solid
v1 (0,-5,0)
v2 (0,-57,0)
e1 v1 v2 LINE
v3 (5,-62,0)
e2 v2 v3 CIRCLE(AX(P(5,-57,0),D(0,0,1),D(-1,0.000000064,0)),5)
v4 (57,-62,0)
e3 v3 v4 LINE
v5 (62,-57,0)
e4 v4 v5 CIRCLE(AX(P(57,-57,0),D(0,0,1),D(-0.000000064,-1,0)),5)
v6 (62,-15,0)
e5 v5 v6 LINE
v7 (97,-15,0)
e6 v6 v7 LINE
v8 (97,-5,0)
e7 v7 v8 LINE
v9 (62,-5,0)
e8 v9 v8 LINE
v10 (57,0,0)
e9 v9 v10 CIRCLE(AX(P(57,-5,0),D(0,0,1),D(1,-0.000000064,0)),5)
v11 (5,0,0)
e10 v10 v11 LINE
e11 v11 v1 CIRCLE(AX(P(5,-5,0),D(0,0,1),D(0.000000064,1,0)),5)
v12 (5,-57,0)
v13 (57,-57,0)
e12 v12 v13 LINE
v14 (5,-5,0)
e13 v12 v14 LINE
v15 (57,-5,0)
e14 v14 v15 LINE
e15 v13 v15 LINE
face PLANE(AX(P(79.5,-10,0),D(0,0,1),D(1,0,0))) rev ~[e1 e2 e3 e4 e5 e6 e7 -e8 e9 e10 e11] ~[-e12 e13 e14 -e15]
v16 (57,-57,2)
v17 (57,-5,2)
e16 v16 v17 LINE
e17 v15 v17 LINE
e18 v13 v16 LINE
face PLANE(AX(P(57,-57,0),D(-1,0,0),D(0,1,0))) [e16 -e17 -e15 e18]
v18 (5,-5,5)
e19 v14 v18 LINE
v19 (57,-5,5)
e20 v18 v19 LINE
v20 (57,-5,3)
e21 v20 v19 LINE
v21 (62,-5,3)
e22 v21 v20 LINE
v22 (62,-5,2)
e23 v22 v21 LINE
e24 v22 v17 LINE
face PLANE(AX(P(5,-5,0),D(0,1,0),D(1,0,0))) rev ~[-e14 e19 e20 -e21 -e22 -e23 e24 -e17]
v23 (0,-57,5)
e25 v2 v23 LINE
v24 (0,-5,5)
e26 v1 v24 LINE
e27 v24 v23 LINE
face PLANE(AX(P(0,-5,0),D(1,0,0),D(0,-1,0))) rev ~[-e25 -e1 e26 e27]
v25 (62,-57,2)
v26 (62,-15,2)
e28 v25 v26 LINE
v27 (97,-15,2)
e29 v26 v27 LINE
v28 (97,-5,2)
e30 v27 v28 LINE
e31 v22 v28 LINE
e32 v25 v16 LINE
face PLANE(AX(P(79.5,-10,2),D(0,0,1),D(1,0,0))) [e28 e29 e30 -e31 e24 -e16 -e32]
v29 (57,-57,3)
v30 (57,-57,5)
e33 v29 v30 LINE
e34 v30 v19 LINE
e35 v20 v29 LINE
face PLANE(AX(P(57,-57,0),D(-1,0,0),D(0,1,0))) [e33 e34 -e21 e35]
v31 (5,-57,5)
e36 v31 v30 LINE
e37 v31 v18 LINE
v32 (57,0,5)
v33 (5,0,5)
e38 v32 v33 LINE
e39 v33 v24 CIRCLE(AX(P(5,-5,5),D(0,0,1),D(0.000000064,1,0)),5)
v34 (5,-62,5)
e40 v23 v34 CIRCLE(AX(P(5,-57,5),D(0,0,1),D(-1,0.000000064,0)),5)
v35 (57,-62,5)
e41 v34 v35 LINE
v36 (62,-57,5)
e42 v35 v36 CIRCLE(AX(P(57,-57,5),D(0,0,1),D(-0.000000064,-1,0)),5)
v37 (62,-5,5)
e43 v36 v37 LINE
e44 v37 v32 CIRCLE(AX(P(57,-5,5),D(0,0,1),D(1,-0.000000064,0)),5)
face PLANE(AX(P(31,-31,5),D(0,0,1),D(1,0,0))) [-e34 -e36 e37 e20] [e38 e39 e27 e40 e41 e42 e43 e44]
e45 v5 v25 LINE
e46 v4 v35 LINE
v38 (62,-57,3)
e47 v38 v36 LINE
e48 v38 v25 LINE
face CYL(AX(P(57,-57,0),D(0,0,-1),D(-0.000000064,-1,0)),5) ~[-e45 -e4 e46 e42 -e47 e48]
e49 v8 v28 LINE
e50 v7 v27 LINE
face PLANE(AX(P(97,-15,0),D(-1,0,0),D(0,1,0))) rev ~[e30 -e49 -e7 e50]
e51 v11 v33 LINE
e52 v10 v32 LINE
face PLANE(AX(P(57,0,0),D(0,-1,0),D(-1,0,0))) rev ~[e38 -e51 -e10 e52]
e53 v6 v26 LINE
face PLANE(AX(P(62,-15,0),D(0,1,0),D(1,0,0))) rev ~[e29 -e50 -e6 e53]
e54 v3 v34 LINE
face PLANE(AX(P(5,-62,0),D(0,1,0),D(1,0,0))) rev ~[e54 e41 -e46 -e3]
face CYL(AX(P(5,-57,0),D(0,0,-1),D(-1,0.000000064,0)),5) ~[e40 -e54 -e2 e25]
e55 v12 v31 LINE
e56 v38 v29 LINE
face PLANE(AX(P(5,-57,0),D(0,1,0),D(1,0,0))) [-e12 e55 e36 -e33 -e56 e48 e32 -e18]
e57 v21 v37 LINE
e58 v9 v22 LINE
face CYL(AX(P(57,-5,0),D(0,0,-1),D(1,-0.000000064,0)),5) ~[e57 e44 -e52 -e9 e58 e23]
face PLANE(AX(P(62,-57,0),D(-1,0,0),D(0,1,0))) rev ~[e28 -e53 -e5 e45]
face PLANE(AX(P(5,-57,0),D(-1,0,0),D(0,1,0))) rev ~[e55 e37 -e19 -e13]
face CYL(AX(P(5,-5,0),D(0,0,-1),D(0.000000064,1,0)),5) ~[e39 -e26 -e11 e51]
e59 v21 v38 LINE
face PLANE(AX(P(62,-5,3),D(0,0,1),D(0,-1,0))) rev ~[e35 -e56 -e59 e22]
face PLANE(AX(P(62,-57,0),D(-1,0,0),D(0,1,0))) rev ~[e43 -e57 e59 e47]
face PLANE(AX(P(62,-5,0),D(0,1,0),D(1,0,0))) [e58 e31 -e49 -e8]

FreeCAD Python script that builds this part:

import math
import FreeCAD as App
import Part
import Sketcher

V = App.Vector
Q = App.Units.Quantity


def add_polygon(sketch, points):
    """Adds a closed chain of lines whose ends are joined by coincident constraints."""
    first, n = sketch.GeometryCount, len(points)
    for a, b in zip(points, points[1:] + points[:1]):
        sketch.addGeometry(Part.LineSegment(App.Vector(*a, 0), App.Vector(*b, 0)), False)
    for i in range(n):
        sketch.addConstraint(Sketcher.Constraint("Coincident", first + i, 2, first + (i + 1) % n, 1))

doc = App.newDocument("Part")
body = doc.addObject("PartDesign::Body", "Body")

# Sketch on XY plane
sketch1 = doc.addObject("Sketcher::SketchObject", "Sketch")
body.addObject(sketch1)
sketch1.AttachmentSupport = (doc.XY_Plane, [""])
sketch1.MapMode = "FlatFace"
sketch1.addGeometry(Part.LineSegment(V(57, 0, 0), V(5, 0, 0)), False)  # 0
sketch1.addGeometry(Part.ArcOfCircle(Part.Circle(V(5, -5, 0), V(0, 0, 1), 5), math.radians(90), math.radians(180)), False)  # 1
sketch1.addGeometry(Part.LineSegment(V(0, -5, 0), V(0, -57, 0)), False)  # 2
sketch1.addGeometry(Part.ArcOfCircle(Part.Circle(V(5, -57, 0), V(0, 0, 1), 5), math.radians(180), math.radians(270)), False)  # 3
sketch1.addGeometry(Part.LineSegment(V(5, -62, 0), V(57, -62, 0)), False)  # 4
sketch1.addGeometry(Part.ArcOfCircle(Part.Circle(V(57, -57, 0), V(0, 0, 1), 5), math.radians(-90), math.radians(0)), False)  # 5
sketch1.addGeometry(Part.LineSegment(V(62, -57, 0), V(62, -5, 0)), False)  # 6
sketch1.addGeometry(Part.ArcOfCircle(Part.Circle(V(57, -5, 0), V(0, 0, 1), 5), math.radians(0), math.radians(90)), False)  # 7
add_polygon(sketch1, [(57, -57), (5, -57), (5, -5), (57, -5)])  # lines 8-11
sketch1.addConstraint(Sketcher.Constraint("Tangent", 0, 2, 1, 1))
sketch1.addConstraint(Sketcher.Constraint("Tangent", 1, 2, 2, 1))
sketch1.addConstraint(Sketcher.Constraint("Tangent", 2, 2, 3, 1))
sketch1.addConstraint(Sketcher.Constraint("Tangent", 3, 2, 4, 1))
sketch1.addConstraint(Sketcher.Constraint("Tangent", 4, 2, 5, 1))
sketch1.addConstraint(Sketcher.Constraint("Tangent", 5, 2, 6, 1))
sketch1.addConstraint(Sketcher.Constraint("Tangent", 6, 2, 7, 1))
sketch1.addConstraint(Sketcher.Constraint("Tangent", 7, 2, 0, 1))
sketch1.addConstraint(Sketcher.Constraint("Horizontal", 0))
sketch1.addConstraint(Sketcher.Constraint("Vertical", 2))
sketch1.addConstraint(Sketcher.Constraint("Horizontal", 4))
sketch1.addConstraint(Sketcher.Constraint("Vertical", 6))
sketch1.addConstraint(Sketcher.Constraint("Horizontal", 8))
sketch1.addConstraint(Sketcher.Constraint("Vertical", 9))
sketch1.addConstraint(Sketcher.Constraint("Horizontal", 10))
sketch1.addConstraint(Sketcher.Constraint("Vertical", 11))
sketch1.addConstraint(Sketcher.Constraint("Coincident", 8, 2, 3, 3))
sketch1.addConstraint(Sketcher.Constraint("Coincident", 9, 2, 1, 3))
sketch1.addConstraint(Sketcher.Constraint("Coincident", 10, 2, 7, 3))
sketch1.addConstraint(Sketcher.Constraint("Equal", 3, 5))
sketch1.addConstraint(Sketcher.Constraint("PointOnObject", 0, 2, -1))
sketch1.addConstraint(Sketcher.Constraint("PointOnObject", 1, 2, -2))
sketch1.addConstraint(Sketcher.Constraint("Equal", 10, 2))
sketch1.addConstraint(Sketcher.Constraint("Radius", 1, Q("5 mm")))
sketch1.addConstraint(Sketcher.Constraint("DistanceX", 0, 2, 0, 1, Q("52 mm")))
pad1 = doc.addObject("PartDesign::Pad", "Pad")
body.addObject(pad1)
pad1.Profile = sketch1
pad1.Length = 5

# Sketch on XY plane
sketch2 = doc.addObject("Sketcher::SketchObject", "Sketch001")
body.addObject(sketch2)
sketch2.AttachmentSupport = (doc.XY_Plane, [""])
sketch2.MapMode = "FlatFace"
add_polygon(sketch2, [(62, -5), (62, -15), (97, -15), (97, -5)])  # lines 0-3
sketch2.addConstraint(Sketcher.Constraint("Vertical", 0))
sketch2.addConstraint(Sketcher.Constraint("Horizontal", 1))
sketch2.addConstraint(Sketcher.Constraint("Vertical", 2))
sketch2.addConstraint(Sketcher.Constraint("Horizontal", 3))
sketch2.addConstraint(Sketcher.Constraint("DistanceX", 1, 1, 1, 2, Q("35 mm")))
sketch2.addConstraint(Sketcher.Constraint("DistanceY", 0, 2, 0, 1, Q("10 mm")))
sketch2.addConstraint(Sketcher.Constraint("DistanceX", -1, 1, 0, 2, Q("62 mm")))
sketch2.addConstraint(Sketcher.Constraint("DistanceY", 0, 2, -1, 1, Q("15 mm")))
pad2 = doc.addObject("PartDesign::Pad", "Pad001")
body.addObject(pad2)
pad2.Profile = sketch2
pad2.Length = 2

# Sketch on YZ plane
sketch3 = doc.addObject("Sketcher::SketchObject", "Sketch002")
body.addObject(sketch3)
sketch3.AttachmentSupport = (doc.YZ_Plane, [""])
sketch3.MapMode = "FlatFace"
sketch3.AttachmentOffset = App.Placement(V(0, 0, 62), App.Rotation())
add_polygon(sketch3, [(-5, 2), (-5, 3), (-57, 3), (-57, 2)])  # lines 0-3
sketch3.addConstraint(Sketcher.Constraint("Vertical", 0))
sketch3.addConstraint(Sketcher.Constraint("Horizontal", 1))
sketch3.addConstraint(Sketcher.Constraint("Vertical", 2))
sketch3.addConstraint(Sketcher.Constraint("Horizontal", 3))
sketch3.addConstraint(Sketcher.Constraint("DistanceX", 1, 2, 1, 1, Q("52 mm")))
sketch3.addConstraint(Sketcher.Constraint("DistanceY", 0, 1, 0, 2, Q("1 mm")))
sketch3.addConstraint(Sketcher.Constraint("DistanceX", 0, 2, -1, 1, Q("5 mm")))
sketch3.addConstraint(Sketcher.Constraint("DistanceY", -1, 1, 0, 2, Q("3 mm")))
pocket1 = doc.addObject("PartDesign::Pocket", "Pocket")
body.addObject(pocket1)
pocket1.Profile = sketch3
pocket1.Length = 5

doc.recompute()
